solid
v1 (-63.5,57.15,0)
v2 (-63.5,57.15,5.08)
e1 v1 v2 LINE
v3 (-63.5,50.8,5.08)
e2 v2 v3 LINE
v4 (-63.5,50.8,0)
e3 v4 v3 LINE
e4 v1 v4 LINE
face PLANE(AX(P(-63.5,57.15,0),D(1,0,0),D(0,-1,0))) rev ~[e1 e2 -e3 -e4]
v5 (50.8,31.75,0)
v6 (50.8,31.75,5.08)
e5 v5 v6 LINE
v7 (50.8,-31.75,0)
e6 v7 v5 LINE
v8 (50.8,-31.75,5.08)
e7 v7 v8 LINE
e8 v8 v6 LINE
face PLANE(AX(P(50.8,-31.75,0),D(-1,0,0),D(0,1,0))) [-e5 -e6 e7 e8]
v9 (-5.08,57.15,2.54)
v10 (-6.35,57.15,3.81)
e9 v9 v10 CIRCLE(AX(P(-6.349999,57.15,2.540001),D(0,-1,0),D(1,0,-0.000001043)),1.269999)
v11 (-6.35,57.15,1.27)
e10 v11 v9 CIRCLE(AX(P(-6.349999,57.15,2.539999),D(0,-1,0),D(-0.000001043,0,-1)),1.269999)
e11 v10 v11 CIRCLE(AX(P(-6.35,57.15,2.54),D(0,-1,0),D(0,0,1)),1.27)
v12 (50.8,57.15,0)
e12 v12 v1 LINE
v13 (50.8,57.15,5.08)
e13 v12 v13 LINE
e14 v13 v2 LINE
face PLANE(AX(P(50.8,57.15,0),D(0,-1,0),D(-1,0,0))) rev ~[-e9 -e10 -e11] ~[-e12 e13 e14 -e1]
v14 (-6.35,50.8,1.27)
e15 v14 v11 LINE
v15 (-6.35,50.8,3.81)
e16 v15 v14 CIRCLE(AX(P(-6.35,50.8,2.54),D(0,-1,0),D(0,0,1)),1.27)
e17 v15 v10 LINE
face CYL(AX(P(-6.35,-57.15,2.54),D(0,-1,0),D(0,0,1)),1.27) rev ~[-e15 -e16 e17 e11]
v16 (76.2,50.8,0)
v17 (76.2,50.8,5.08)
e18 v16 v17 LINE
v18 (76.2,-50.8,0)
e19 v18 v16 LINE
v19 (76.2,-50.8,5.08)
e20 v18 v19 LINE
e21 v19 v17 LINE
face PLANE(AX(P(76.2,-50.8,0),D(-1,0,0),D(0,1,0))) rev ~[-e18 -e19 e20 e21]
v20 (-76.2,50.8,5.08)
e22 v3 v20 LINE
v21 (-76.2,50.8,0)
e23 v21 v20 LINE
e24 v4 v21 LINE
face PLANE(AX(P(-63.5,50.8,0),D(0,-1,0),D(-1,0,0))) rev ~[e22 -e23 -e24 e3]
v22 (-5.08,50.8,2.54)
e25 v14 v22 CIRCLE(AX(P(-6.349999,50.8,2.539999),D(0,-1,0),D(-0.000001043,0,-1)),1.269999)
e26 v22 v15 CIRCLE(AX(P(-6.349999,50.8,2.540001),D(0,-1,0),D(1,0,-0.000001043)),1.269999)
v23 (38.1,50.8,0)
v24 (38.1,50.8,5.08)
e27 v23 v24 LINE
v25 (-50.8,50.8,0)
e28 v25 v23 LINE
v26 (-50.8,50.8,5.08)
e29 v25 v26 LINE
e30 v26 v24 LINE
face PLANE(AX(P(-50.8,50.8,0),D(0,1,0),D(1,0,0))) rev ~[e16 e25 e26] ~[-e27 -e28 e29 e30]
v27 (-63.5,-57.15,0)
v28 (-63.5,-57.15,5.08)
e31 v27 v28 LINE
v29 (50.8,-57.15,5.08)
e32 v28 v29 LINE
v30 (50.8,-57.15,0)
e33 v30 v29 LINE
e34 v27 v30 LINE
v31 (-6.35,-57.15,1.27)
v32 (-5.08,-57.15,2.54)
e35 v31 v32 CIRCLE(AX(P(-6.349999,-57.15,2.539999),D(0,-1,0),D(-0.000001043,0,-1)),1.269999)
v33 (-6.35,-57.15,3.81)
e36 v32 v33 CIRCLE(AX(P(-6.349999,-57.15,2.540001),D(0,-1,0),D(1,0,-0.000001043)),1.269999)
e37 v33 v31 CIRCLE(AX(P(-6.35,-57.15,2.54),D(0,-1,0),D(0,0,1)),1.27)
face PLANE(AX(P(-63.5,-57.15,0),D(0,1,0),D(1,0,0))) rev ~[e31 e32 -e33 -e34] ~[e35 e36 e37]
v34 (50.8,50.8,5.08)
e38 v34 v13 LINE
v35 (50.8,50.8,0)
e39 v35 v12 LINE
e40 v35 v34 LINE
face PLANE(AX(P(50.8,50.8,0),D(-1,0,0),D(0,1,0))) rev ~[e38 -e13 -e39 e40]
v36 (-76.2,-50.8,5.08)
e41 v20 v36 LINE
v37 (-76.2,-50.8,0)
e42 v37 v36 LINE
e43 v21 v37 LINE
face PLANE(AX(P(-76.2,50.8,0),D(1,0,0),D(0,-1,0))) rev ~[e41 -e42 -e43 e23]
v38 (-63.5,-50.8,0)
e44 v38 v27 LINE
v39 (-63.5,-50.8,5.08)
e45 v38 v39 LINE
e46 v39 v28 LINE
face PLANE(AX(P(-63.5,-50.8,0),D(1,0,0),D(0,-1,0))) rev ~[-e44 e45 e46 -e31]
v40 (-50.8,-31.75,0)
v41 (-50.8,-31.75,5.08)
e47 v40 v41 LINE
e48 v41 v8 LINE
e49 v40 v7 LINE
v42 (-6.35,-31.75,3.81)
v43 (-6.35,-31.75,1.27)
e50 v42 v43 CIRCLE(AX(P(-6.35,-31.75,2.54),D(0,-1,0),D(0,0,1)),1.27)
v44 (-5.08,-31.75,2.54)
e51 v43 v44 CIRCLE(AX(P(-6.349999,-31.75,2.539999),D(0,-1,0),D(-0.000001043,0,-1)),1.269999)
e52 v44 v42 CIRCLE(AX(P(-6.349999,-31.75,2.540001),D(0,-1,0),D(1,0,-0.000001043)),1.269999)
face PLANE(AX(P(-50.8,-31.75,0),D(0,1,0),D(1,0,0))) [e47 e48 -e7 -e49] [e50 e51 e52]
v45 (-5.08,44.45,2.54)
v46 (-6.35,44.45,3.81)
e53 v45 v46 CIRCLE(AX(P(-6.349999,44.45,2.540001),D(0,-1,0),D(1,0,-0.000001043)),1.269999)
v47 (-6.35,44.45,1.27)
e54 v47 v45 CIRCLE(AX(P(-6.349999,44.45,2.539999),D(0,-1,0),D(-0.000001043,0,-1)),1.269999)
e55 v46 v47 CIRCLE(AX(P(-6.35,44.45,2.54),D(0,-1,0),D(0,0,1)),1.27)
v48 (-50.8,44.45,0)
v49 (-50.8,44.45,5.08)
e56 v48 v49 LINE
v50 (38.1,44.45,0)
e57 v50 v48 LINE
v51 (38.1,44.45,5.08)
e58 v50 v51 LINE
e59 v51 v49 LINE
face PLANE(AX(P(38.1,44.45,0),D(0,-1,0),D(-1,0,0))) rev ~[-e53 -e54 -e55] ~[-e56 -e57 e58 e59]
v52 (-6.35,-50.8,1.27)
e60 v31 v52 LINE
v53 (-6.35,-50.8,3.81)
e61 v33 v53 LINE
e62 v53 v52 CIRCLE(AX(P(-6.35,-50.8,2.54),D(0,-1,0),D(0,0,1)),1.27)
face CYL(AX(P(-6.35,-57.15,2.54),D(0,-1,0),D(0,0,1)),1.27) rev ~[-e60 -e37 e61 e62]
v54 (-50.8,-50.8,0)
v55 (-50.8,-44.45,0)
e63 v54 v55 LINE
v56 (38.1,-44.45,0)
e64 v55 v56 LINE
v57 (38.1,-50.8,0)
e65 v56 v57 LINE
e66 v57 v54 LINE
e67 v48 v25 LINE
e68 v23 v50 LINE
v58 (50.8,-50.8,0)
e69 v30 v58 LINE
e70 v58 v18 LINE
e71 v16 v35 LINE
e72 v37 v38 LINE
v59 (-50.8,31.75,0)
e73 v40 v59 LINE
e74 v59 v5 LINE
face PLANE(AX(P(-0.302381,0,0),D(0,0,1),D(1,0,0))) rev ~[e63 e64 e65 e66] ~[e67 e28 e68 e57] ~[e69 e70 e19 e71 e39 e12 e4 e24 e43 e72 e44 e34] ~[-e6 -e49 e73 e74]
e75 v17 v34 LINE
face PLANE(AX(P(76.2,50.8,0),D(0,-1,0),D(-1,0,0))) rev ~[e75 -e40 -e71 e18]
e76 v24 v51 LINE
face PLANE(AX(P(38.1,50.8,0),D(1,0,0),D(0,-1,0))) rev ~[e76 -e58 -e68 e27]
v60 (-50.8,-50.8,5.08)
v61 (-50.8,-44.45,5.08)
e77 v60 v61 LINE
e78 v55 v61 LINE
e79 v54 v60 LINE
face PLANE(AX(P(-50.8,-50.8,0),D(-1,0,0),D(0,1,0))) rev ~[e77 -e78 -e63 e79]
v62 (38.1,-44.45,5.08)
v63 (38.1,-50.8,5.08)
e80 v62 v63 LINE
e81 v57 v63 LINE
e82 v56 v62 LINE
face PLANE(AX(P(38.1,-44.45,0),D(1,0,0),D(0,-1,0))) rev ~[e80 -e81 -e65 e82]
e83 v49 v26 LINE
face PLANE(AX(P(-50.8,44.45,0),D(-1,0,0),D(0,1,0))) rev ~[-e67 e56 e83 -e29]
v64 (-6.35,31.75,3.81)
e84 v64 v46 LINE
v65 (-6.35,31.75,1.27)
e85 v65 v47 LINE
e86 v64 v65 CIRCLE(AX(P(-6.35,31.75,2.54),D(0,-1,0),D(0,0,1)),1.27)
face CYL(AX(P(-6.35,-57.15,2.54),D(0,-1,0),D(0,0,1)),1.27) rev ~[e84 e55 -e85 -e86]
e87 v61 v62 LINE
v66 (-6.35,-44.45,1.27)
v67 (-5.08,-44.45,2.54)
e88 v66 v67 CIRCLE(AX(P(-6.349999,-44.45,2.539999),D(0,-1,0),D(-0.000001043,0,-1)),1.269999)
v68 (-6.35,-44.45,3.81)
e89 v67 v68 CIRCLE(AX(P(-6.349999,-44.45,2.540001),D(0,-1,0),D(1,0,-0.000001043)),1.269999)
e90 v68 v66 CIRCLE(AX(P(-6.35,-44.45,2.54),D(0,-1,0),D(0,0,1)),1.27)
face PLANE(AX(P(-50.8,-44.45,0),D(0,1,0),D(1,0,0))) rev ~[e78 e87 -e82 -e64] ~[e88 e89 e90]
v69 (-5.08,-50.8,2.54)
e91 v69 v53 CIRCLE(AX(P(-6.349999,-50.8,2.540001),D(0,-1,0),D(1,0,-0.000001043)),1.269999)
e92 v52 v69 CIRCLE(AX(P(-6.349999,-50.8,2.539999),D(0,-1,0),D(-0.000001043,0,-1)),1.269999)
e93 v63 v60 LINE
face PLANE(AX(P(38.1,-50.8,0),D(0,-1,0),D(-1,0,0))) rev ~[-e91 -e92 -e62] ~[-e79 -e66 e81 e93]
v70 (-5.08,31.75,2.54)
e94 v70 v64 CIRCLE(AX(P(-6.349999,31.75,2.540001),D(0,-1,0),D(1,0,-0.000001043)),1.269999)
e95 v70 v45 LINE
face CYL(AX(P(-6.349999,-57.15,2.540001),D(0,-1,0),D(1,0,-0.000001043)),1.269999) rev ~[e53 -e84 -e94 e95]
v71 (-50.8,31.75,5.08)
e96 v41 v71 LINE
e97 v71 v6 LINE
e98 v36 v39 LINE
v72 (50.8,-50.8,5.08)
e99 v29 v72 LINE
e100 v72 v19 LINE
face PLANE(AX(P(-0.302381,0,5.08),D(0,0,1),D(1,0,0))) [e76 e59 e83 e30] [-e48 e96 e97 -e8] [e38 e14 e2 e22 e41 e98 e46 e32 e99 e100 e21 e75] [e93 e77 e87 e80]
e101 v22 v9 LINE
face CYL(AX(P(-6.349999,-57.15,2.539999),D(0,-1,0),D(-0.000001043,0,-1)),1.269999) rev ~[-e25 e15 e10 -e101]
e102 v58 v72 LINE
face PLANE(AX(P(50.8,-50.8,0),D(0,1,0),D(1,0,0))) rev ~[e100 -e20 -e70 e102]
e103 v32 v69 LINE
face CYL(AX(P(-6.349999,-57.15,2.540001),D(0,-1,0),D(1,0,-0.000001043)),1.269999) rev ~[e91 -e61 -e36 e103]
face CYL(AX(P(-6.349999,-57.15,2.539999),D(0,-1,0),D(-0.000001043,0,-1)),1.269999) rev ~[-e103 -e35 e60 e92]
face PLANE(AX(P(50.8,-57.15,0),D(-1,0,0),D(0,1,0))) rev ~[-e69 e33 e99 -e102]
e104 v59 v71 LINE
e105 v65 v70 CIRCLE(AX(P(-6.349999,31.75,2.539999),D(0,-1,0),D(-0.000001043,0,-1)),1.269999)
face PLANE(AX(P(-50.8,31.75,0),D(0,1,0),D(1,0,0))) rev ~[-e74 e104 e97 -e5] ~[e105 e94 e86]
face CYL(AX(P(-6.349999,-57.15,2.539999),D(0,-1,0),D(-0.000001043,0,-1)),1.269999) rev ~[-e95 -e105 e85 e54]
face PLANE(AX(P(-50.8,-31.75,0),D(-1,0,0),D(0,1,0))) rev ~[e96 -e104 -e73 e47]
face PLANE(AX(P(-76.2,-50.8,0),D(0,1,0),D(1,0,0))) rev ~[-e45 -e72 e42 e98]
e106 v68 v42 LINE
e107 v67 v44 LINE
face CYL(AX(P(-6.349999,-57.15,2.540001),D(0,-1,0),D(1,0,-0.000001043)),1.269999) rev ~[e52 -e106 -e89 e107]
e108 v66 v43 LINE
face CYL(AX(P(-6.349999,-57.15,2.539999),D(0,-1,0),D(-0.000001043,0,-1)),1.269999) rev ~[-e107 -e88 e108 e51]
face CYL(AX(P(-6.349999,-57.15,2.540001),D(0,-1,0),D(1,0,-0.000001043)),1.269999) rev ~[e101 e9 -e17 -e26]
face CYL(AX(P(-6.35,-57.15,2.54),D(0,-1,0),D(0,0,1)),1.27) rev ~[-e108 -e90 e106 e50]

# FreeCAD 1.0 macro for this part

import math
import FreeCAD as App
import Part
import Sketcher
from FreeCAD import Vector
Q = App.Units.Quantity


def add_polygon(sketch, points):
    """Adds a closed chain of lines whose ends are joined by coincident constraints."""
    first, n = sketch.GeometryCount, len(points)
    for a, b in zip(points, points[1:] + points[:1]):
        sketch.addGeometry(Part.LineSegment(App.Vector(*a, 0), App.Vector(*b, 0)), False)
    for i in range(n):
        sketch.addConstraint(Sketcher.Constraint("Coincident", first + i, 2, first + (i + 1) % n, 1))

doc = App.newDocument("Part")
body = doc.addObject("PartDesign::Body", "Body")

# Sketch on XY plane
sketch1 = body.newObject("Sketcher::SketchObject", "Sketch")
sketch1.AttachmentSupport = (doc.getObject("XY_Plane"), [""])
sketch1.MapMode = "FlatFace"
add_polygon(sketch1, [(-76, 51), (-76, -51), (-64, -51), (-64, -57), (51, -57), (51, -51), (76, -51), (76, 51), (51, 51), (51, 57), (-64, 57), (-64, 51)])  # lines 0-11
add_polygon(sketch1, [(-51, -51), (-51, -44), (38, -44), (38, -51)])  # lines 12-15
add_polygon(sketch1, [(-51, 44), (-51, 51), (38, 51), (38, 44)])  # lines 16-19
add_polygon(sketch1, [(51, -32), (-51, -32), (-51, 32), (51, 32)])  # lines 20-23
sketch1.addConstraint(Sketcher.Constraint("Vertical", 0))
sketch1.addConstraint(Sketcher.Constraint("Horizontal", 1))
sketch1.addConstraint(Sketcher.Constraint("Vertical", 2))
sketch1.addConstraint(Sketcher.Constraint("Horizontal", 3))
sketch1.addConstraint(Sketcher.Constraint("Vertical", 4))
sketch1.addConstraint(Sketcher.Constraint("Horizontal", 5))
sketch1.addConstraint(Sketcher.Constraint("Vertical", 6))
sketch1.addConstraint(Sketcher.Constraint("Horizontal", 7))
sketch1.addConstraint(Sketcher.Constraint("Vertical", 8))
sketch1.addConstraint(Sketcher.Constraint("Horizontal", 9))
sketch1.addConstraint(Sketcher.Constraint("Vertical", 10))
sketch1.addConstraint(Sketcher.Constraint("Horizontal", 11))
sketch1.addConstraint(Sketcher.Constraint("Vertical", 12))
sketch1.addConstraint(Sketcher.Constraint("Horizontal", 13))
sketch1.addConstraint(Sketcher.Constraint("Vertical", 14))
sketch1.addConstraint(Sketcher.Constraint("Horizontal", 15))
sketch1.addConstraint(Sketcher.Constraint("Vertical", 16))
sketch1.addConstraint(Sketcher.Constraint("Horizontal", 17))
sketch1.addConstraint(Sketcher.Constraint("Vertical", 18))
sketch1.addConstraint(Sketcher.Constraint("Horizontal", 19))
sketch1.addConstraint(Sketcher.Constraint("Horizontal", 20))
sketch1.addConstraint(Sketcher.Constraint("Vertical", 21))
sketch1.addConstraint(Sketcher.Constraint("Horizontal", 22))
sketch1.addConstraint(Sketcher.Constraint("Vertical", 23))
sketch1.addConstraint(Sketcher.Constraint("Symmetric", 0, 2, 6, 2, -1, 1))
sketch1.addConstraint(Sketcher.Constraint("Symmetric", 7, 2, 15, 2, -1, 1))
sketch1.addConstraint(Sketcher.Constraint("Symmetric", 4, 2, 16, 2, -1, 1))
sketch1.addConstraint(Sketcher.Constraint("Symmetric", 20, 2, 22, 2, -1, 1))
sketch1.addConstraint(Sketcher.Constraint("Symmetric", 4, 2, 15, 2, -2))
sketch1.addConstraint(Sketcher.Constraint("Symmetric", 2, 2, 9, 2, -1))
sketch1.addConstraint(Sketcher.Constraint("Symmetric", 13, 2, 18, 2, -1))
sketch1.addConstraint(Sketcher.Constraint("Horizontal", 7, 2, 10, 2))
sketch1.addConstraint(Sketcher.Constraint("Vertical", 19, 2, 20, 2))
sketch1.addConstraint(Sketcher.Constraint("Equal", 22, 0))
sketch1.addConstraint(Sketcher.Constraint("Equal", 10, 12))
sketch1.addConstraint(Sketcher.Constraint("DistanceX", 5, 1, 5, 2, Q("1 in")))
sketch1.addConstraint(Sketcher.Constraint("DistanceX", 20, 2, 20, 1, Q("4 in")))
sketch1.addConstraint(Sketcher.Constraint("DistanceX", 1, 1, 1, 2, Q("0.5 in")))
sketch1.addConstraint(Sketcher.Constraint("DistanceX", 13, 1, 13, 2, Q("3.5 in")))
sketch1.addConstraint(Sketcher.Constraint("DistanceY", 21, 1, 21, 2, Q("2.5 in")))
sketch1.addConstraint(Sketcher.Constraint("DistanceY", 2, 2, 20, 2, Q("1 in")))
pad1 = body.newObject("PartDesign::Pad", "Pad")
pad1.Profile = sketch1
pad1.Length = Q("0.2 in")

# Sketch on XZ plane
sketch2 = body.newObject("Sketcher::SketchObject", "Sketch001")
sketch2.AttachmentSupport = (doc.getObject("XZ_Plane"), [""])
sketch2.MapMode = "FlatFace"
sketch2.AttachmentOffset = App.Placement(Vector(0, 0, 2.25 * 25.4), App.Rotation())
sketch2.addGeometry(Part.ArcOfCircle(Part.Circle(Vector(-6.3, 2.5, 0), Vector(0, 0, 1), 1.3), math.radians(90), math.radians(270)), False)
sketch2.addGeometry(Part.ArcOfCircle(Part.Circle(Vector(-6.3, 2.5, 0), Vector(0, 0, 1), 1.3), math.radians(-90), math.radians(0)), False)
sketch2.addGeometry(Part.ArcOfCircle(Part.Circle(Vector(-6.3, 2.5, 0), Vector(0, 0, 1), 1.3), math.radians(0), math.radians(90)), False)
sketch2.addConstraint(Sketcher.Constraint("Tangent", 0, 2, 1, 1))
sketch2.addConstraint(Sketcher.Constraint("Coincident", 1, 2, 2, 1))
sketch2.addConstraint(Sketcher.Constraint("Tangent", 2, 2, 0, 1))
sketch2.addConstraint(Sketcher.Constraint("Equal", 0, 1))
sketch2.addConstraint(Sketcher.Constraint("Horizontal", 2, 3, 1, 2))
sketch2.addConstraint(Sketcher.Constraint("Vertical", 2, 3, 0, 2))
sketch2.addConstraint(Sketcher.Constraint("Vertical", 0, 2, 2, 2))
sketch2.addConstraint(Sketcher.Constraint("Radius", 0, Q("0.05 in")))
sketch2.addConstraint(Sketcher.Constraint("DistanceY", -1, 1, 0, 3, Q("0.1 in")))
sketch2.addConstraint(Sketcher.Constraint("DistanceX", 1, 2, -1, 1, Q("0.2 in")))
pocket1 = body.newObject("PartDesign::Pocket", "Pocket")
pocket1.Profile = sketch2
pocket1.Length = Q("6 in")

doc.recompute()
